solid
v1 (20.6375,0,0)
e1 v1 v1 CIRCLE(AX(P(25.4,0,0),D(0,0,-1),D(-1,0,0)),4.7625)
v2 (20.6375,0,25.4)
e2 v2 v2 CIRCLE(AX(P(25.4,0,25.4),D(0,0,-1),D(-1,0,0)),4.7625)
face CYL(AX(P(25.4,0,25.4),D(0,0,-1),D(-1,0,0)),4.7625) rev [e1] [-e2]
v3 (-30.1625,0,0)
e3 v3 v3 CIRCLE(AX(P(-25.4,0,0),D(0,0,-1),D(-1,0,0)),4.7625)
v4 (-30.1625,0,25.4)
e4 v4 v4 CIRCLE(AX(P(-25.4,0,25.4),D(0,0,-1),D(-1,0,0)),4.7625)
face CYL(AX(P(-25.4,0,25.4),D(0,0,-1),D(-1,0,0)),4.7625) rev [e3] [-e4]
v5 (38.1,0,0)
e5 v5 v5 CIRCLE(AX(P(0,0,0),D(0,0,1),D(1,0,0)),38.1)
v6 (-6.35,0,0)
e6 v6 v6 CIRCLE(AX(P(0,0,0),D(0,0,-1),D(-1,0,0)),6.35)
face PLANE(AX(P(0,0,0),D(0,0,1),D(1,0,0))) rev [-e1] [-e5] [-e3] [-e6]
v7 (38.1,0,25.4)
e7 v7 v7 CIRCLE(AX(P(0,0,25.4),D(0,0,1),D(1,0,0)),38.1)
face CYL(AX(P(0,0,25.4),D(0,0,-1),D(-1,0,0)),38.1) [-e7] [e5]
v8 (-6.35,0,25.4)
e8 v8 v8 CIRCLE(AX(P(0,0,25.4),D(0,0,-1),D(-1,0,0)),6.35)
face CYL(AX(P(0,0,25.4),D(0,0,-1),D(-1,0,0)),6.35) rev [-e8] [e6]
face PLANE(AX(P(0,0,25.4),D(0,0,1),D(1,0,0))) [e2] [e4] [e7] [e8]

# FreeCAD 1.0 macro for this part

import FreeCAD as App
import Part
import Sketcher
Q = App.Units.Quantity

doc = App.newDocument("Part")
body = doc.addObject("PartDesign::Body", "Body")

sketch1 = doc.addObject("Sketcher::SketchObject", "Sketch")
body.addObject(sketch1)
sketch1.AttachmentSupport = (doc.XY_Plane, [""])
sketch1.MapMode = "FlatFace"
sketch1.addGeometry(Part.Circle(App.Vector(0, 0, 0), App.Vector(0, 0, 1), 38.1), False)
sketch1.addConstraint([
    Sketcher.Constraint("Coincident", 0, 3, -1, 1),
    Sketcher.Constraint("Diameter", 0, Q("3 in")),
])
pad1 = doc.addObject("PartDesign::Pad", "Pad")
body.addObject(pad1)
pad1.Profile = sketch1
pad1.Length = Q("1 in")

sketch2 = doc.addObject("Sketcher::SketchObject", "Sketch001")
body.addObject(sketch2)
sketch2.AttachmentSupport = (doc.XY_Plane, [""])
sketch2.MapMode = "FlatFace"
sketch2.addGeometry([
    Part.Circle(App.Vector(25.4, 0, 0), App.Vector(0, 0, 1), 4.7625),
    Part.Circle(App.Vector(-25.4, 0, 0), App.Vector(0, 0, 1), 4.7625),
], False)
sketch2.addConstraint([
    Sketcher.Constraint("Equal", 0, 1),
    Sketcher.Constraint("Symmetric", 0, 3, 1, 3, -1, 1),
    Sketcher.Constraint("PointOnObject", 0, 3, -1),
    Sketcher.Constraint("Diameter", 0, Q("0.375 in")),
    Sketcher.Constraint("DistanceX", -1, 1, 0, 3, Q("1 in")),
])
pocket1 = doc.addObject("PartDesign::Pocket", "Pocket")
body.addObject(pocket1)
pocket1.Profile = sketch2
pocket1.Type = "ThroughAll"
pocket1.Reversed = True

sketch3 = doc.addObject("Sketcher::SketchObject", "Sketch002")
body.addObject(sketch3)
sketch3.AttachmentSupport = (doc.XY_Plane, [""])
sketch3.MapMode = "FlatFace"
sketch3.addGeometry(Part.Circle(App.Vector(0, 0, 0), App.Vector(0, 0, 1), 6.35), False)
sketch3.addConstraint([
    Sketcher.Constraint("Coincident", 0, 3, -1, 1),
    Sketcher.Constraint("Diameter", 0, Q("0.5 in")),
])
pocket2 = doc.addObject("PartDesign::Pocket", "Pocket001")
body.addObject(pocket2)
pocket2.Profile = sketch3
pocket2.Type = "ThroughAll"
pocket2.Reversed = True

doc.recompute()
